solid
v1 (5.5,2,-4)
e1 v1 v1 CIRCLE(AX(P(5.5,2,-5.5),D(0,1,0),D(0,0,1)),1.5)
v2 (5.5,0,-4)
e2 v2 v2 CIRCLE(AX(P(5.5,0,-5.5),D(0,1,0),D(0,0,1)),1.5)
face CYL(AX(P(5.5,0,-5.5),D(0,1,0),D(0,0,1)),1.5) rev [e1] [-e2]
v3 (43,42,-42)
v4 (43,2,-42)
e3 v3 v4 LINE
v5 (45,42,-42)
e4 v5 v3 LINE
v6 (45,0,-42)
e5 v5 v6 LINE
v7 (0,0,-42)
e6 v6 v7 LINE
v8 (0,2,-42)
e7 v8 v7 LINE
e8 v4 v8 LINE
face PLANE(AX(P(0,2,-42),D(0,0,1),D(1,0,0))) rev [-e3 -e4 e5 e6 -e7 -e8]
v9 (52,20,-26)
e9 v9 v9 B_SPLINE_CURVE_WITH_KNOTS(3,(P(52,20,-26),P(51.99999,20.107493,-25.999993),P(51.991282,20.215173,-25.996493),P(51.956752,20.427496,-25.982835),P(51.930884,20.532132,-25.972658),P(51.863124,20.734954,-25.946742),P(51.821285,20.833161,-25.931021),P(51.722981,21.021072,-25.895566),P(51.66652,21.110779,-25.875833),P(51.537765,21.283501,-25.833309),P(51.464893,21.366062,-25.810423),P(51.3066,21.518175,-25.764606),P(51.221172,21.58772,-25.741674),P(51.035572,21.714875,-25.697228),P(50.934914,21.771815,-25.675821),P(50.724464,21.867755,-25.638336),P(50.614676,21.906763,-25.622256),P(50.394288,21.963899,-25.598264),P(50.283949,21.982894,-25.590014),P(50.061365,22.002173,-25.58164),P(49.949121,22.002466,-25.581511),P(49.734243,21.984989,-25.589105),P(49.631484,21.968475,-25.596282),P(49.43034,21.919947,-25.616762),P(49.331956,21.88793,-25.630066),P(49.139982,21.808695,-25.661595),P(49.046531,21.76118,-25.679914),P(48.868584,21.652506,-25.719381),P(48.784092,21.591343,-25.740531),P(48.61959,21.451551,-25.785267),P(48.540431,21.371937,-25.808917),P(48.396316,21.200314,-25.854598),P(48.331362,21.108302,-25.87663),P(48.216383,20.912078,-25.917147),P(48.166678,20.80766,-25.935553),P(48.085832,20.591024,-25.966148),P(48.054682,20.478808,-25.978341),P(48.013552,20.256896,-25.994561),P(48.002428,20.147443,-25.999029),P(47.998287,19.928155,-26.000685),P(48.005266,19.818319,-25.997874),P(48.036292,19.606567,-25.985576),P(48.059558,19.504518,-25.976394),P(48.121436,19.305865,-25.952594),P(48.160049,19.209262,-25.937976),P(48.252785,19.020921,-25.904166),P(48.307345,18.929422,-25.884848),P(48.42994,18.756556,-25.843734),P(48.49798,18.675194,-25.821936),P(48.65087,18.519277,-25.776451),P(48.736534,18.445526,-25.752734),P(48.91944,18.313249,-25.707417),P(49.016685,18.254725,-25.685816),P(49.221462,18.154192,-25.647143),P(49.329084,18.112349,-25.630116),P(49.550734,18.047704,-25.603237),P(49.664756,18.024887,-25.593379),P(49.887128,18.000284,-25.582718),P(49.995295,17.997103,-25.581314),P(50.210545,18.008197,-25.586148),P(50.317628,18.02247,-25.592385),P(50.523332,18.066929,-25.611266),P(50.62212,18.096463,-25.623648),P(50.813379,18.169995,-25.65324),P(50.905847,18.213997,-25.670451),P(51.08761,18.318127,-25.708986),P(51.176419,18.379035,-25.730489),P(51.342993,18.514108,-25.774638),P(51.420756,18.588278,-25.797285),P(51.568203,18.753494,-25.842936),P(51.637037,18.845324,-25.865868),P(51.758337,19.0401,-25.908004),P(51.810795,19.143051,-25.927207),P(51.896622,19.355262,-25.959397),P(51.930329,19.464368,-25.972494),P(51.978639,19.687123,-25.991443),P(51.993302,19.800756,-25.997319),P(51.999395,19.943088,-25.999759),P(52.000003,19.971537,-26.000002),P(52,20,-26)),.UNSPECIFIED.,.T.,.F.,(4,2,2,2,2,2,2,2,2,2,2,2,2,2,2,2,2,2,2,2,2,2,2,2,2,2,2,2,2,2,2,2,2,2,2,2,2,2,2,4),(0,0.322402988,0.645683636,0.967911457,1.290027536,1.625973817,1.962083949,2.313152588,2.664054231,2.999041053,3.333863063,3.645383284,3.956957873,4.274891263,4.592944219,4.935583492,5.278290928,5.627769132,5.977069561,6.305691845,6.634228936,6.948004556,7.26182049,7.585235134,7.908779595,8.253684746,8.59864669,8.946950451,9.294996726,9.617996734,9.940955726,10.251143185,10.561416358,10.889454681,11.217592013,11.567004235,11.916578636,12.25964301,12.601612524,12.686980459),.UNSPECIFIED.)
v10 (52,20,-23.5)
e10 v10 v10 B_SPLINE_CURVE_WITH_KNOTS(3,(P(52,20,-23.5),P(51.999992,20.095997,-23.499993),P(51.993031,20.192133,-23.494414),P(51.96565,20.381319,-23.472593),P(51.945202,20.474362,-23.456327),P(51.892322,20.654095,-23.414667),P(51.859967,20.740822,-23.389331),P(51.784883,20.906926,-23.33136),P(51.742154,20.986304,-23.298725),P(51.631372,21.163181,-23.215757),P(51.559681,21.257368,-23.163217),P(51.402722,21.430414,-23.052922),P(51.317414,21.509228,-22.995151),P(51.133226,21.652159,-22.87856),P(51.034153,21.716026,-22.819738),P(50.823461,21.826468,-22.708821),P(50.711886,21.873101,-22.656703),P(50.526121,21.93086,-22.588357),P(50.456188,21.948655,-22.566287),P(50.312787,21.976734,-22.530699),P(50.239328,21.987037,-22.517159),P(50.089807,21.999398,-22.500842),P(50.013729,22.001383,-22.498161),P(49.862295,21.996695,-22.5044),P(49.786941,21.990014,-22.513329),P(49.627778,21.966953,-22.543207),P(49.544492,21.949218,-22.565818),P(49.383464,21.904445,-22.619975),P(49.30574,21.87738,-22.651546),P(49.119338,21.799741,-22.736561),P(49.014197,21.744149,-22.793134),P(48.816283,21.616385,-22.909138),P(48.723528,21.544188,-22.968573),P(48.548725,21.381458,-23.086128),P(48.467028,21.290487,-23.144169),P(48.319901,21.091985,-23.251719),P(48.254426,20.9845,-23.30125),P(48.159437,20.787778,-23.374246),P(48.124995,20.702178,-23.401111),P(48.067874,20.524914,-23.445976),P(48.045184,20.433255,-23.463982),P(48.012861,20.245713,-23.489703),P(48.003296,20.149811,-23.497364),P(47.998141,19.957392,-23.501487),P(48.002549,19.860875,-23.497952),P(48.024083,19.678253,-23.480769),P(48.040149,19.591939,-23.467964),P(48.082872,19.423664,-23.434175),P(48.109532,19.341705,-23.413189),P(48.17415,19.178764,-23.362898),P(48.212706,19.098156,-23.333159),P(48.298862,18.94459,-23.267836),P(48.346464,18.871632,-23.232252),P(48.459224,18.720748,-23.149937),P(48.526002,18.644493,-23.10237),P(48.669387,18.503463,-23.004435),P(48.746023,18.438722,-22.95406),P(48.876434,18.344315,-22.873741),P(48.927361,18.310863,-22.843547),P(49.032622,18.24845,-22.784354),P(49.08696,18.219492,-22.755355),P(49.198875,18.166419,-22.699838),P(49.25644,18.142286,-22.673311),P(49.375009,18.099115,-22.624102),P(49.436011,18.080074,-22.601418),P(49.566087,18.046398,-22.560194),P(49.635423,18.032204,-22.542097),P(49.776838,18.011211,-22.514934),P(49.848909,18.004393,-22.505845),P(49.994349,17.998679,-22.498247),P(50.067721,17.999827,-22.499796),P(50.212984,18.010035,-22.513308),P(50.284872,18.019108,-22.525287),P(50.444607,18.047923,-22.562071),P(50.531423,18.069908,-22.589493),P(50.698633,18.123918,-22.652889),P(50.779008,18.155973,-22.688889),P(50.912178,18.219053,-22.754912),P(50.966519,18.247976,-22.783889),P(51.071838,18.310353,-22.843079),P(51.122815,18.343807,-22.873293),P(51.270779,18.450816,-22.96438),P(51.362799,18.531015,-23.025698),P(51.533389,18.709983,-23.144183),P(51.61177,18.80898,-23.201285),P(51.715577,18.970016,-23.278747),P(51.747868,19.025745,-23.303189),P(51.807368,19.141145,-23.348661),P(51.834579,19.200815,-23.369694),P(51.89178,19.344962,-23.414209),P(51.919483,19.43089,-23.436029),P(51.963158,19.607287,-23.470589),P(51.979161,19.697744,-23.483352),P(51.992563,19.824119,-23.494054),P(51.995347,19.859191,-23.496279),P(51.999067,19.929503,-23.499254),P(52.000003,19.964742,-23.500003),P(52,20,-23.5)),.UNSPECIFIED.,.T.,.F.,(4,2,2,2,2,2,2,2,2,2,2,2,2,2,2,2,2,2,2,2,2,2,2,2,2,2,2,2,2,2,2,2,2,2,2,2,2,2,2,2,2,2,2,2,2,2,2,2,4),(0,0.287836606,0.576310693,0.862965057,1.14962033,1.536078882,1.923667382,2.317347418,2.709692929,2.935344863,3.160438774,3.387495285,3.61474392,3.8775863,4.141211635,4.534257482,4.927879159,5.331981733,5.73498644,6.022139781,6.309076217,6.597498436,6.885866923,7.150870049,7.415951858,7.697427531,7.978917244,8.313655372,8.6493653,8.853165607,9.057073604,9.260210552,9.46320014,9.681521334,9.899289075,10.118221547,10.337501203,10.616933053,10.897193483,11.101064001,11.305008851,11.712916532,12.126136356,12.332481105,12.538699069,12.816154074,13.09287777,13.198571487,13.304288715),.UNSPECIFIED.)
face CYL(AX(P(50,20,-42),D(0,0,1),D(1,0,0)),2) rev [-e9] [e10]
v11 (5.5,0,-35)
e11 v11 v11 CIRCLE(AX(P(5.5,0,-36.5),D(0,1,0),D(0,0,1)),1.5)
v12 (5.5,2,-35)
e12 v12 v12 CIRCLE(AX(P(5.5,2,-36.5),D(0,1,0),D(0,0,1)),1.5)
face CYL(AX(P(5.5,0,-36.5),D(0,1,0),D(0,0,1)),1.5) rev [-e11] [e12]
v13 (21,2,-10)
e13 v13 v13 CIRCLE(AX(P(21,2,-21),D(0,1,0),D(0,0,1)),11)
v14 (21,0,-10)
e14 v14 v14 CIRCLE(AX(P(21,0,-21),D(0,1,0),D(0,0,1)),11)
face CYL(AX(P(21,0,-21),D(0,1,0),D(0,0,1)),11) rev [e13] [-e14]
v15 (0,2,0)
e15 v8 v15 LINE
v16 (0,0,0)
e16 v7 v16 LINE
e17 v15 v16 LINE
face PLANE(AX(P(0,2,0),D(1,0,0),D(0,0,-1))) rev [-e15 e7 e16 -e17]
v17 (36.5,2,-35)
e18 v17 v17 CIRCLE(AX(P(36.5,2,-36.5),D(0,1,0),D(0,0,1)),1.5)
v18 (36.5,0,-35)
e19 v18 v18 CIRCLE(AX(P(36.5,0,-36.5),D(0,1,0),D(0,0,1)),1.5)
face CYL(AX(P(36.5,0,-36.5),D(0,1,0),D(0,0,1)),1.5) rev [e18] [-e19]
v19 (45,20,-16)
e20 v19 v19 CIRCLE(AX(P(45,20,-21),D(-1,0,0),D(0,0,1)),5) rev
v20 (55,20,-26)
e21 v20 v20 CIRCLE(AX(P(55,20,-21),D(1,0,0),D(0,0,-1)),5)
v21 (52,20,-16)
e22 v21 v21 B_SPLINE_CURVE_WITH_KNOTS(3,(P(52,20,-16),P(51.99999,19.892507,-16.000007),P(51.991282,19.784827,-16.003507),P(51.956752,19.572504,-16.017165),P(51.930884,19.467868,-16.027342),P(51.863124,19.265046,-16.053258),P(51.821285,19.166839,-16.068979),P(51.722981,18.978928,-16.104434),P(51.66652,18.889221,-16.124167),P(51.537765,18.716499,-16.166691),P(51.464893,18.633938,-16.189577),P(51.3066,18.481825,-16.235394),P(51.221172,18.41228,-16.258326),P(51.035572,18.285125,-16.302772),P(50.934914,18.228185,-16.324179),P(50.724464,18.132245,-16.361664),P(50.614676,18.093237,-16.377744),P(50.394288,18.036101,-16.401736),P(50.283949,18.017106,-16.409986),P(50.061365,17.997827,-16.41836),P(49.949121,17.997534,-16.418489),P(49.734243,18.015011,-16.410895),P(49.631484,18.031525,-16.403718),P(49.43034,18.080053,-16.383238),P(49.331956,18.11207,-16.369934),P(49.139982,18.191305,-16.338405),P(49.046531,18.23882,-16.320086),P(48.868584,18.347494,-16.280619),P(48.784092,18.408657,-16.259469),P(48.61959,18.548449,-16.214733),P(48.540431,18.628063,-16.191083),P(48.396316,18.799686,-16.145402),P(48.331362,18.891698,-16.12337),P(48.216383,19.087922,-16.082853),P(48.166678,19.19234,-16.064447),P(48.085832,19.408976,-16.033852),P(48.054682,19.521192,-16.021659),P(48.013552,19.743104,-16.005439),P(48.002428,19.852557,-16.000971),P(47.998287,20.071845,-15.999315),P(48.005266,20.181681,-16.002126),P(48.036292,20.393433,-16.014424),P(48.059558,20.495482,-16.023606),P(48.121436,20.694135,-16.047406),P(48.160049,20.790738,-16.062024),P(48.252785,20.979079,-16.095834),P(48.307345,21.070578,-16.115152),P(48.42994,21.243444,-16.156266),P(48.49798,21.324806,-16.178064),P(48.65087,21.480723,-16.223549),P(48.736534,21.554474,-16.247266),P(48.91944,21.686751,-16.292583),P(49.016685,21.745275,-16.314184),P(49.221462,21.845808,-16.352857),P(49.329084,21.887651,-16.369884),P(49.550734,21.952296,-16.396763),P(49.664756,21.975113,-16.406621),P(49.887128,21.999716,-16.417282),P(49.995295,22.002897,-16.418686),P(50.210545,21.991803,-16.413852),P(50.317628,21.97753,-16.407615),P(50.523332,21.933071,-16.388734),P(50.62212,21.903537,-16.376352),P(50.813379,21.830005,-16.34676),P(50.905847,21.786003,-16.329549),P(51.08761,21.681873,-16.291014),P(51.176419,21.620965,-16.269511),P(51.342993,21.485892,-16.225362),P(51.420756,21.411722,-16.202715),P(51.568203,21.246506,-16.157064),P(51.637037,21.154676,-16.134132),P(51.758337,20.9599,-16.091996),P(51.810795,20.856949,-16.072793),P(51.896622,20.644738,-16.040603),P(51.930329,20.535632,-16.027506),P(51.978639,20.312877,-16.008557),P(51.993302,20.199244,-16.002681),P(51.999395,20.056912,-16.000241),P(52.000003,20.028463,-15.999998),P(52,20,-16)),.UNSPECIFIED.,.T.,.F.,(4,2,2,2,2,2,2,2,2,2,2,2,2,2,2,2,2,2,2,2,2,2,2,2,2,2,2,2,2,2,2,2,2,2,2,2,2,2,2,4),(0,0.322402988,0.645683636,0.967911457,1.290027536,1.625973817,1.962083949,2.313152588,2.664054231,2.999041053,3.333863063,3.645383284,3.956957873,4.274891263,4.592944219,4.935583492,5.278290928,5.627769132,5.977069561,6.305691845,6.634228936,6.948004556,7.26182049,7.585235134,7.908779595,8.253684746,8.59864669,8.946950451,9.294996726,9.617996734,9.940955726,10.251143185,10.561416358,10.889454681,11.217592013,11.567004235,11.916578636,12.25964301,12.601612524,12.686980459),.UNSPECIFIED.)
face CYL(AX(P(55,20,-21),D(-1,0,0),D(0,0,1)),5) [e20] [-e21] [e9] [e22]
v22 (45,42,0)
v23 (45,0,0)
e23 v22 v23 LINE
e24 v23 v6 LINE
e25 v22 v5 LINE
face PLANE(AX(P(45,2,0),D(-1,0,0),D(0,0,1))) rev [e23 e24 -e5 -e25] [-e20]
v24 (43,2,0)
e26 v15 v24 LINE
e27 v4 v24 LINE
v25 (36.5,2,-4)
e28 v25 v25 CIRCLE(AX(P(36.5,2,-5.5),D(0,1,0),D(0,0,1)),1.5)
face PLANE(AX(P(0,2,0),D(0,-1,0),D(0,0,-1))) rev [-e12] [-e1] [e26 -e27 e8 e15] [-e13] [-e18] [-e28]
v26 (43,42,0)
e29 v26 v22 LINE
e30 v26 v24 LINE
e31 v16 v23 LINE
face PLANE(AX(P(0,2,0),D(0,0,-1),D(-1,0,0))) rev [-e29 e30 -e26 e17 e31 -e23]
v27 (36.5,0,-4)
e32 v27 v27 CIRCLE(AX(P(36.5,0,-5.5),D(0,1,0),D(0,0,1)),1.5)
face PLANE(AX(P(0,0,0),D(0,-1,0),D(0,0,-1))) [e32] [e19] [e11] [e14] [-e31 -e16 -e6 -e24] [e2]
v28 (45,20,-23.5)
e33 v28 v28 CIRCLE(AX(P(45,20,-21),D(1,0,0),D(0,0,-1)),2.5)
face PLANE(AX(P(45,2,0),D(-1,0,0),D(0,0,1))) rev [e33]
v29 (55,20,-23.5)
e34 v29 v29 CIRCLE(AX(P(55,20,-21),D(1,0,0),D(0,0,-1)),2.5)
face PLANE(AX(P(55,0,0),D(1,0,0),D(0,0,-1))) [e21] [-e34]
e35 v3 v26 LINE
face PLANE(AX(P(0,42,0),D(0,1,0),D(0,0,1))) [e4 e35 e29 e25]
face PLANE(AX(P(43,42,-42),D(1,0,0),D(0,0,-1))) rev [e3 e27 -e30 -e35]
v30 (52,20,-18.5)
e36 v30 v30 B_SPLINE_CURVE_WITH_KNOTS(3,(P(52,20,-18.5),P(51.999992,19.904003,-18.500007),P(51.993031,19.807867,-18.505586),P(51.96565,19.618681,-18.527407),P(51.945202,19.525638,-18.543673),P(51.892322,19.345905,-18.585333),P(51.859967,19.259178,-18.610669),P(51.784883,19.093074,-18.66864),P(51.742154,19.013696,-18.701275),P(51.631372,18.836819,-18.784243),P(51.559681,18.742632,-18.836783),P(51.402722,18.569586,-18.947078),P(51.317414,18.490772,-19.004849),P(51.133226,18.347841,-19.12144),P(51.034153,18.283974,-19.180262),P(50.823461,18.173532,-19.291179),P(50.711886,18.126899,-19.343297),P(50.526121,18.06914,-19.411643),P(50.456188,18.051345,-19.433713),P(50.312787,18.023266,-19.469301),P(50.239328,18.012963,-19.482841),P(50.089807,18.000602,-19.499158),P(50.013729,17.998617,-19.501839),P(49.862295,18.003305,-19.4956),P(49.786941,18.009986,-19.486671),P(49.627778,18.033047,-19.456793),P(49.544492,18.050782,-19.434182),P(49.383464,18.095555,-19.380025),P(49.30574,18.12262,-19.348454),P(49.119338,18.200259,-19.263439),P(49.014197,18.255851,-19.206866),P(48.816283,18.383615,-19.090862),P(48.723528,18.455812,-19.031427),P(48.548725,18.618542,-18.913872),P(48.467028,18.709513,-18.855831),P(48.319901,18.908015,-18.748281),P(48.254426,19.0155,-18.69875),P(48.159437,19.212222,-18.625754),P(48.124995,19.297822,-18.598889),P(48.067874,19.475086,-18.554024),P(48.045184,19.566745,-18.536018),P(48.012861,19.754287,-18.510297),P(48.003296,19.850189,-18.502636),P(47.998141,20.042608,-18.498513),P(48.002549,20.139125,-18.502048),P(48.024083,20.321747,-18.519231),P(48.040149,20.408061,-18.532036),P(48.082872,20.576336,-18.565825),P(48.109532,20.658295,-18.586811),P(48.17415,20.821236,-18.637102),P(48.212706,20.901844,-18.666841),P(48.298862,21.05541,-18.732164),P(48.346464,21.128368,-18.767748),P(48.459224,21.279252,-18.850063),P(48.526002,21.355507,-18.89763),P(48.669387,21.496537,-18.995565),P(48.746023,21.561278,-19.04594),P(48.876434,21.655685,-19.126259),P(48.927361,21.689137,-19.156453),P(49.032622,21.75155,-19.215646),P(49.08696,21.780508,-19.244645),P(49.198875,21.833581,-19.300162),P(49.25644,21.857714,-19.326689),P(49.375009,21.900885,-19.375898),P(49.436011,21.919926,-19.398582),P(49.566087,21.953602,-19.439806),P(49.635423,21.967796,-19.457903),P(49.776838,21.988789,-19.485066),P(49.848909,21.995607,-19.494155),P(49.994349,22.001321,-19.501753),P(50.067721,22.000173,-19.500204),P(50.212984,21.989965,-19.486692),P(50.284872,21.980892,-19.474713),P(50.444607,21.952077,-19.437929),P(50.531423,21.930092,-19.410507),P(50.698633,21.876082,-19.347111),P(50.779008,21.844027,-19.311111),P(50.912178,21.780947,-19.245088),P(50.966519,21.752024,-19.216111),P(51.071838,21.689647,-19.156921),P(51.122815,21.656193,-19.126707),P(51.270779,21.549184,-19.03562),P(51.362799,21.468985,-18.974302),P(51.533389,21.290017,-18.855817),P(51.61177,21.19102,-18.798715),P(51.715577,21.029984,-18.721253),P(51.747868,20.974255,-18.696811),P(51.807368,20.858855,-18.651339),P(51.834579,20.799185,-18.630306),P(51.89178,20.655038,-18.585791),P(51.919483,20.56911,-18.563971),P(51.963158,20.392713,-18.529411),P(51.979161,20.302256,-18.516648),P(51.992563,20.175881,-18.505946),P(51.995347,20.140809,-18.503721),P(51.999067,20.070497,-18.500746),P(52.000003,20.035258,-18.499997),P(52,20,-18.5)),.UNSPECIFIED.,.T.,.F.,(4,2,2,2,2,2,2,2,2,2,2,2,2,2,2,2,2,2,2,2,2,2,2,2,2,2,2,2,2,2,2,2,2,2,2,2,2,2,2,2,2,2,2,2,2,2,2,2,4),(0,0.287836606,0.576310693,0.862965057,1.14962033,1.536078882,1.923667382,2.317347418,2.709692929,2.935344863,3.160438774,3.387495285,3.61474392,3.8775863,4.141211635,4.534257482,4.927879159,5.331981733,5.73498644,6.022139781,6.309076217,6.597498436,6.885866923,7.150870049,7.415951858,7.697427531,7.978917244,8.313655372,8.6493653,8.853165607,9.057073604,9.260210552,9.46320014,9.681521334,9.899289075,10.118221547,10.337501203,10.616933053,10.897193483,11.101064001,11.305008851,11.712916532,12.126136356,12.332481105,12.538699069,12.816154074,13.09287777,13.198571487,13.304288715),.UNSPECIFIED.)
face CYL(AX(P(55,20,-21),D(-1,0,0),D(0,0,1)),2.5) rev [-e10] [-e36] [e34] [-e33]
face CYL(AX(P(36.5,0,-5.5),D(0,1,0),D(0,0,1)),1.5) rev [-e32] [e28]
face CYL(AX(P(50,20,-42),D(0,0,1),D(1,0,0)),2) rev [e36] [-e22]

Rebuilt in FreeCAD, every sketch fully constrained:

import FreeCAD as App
import Part
import Sketcher
Q = App.Units.Quantity

doc = App.newDocument("Part")
body = doc.addObject("PartDesign::Body", "Body")

# Sketch on XZ plane
sketch1 = body.newObject("Sketcher::SketchObject", "Sketch")
sketch1.AttachmentSupport = (doc.getObject("XZ_Plane"), [""])
sketch1.MapMode = "FlatFace"
sketch1.addGeometry(Part.LineSegment(App.Vector(0, -42, 0), App.Vector(0, 0, 0)), False)
sketch1.addGeometry(Part.LineSegment(App.Vector(0, 0, 0), App.Vector(45, 0, 0)), False)
sketch1.addGeometry(Part.LineSegment(App.Vector(45, 0, 0), App.Vector(45, -42, 0)), False)
sketch1.addGeometry(Part.LineSegment(App.Vector(45, -42, 0), App.Vector(0, -42, 0)), False)
sketch1.addConstraint(Sketcher.Constraint("Coincident", 0, 2, 1, 1))
sketch1.addConstraint(Sketcher.Constraint("Coincident", 1, 2, 2, 1))
sketch1.addConstraint(Sketcher.Constraint("Coincident", 2, 2, 3, 1))
sketch1.addConstraint(Sketcher.Constraint("Coincident", 3, 2, 0, 1))
sketch1.addConstraint(Sketcher.Constraint("Vertical", 0))
sketch1.addConstraint(Sketcher.Constraint("Horizontal", 1))
sketch1.addConstraint(Sketcher.Constraint("Vertical", 2))
sketch1.addConstraint(Sketcher.Constraint("Horizontal", 3))
sketch1.addConstraint(Sketcher.Constraint("Coincident", 0, 2, -1, 1))
sketch1.addConstraint(Sketcher.Constraint("DistanceX", 1, 1, 1, 2, Q("45 mm")))
sketch1.addConstraint(Sketcher.Constraint("DistanceY", 0, 1, 0, 2, Q("42 mm")))
pad1 = body.newObject("PartDesign::Pad", "Pad")
pad1.Profile = sketch1
pad1.Length = 2
pad1.Reversed = True

# Sketch on XZ plane
sketch2 = body.newObject("Sketcher::SketchObject", "Sketch001")
sketch2.AttachmentSupport = (doc.getObject("XZ_Plane"), [""])
sketch2.MapMode = "FlatFace"
sketch2.AttachmentOffset = App.Placement(App.Vector(0, 0, -2), App.Rotation())
sketch2.addGeometry(Part.Circle(App.Vector(21, -21, 0), App.Vector(0, 0, 1), 11), False)
sketch2.addGeometry(Part.Circle(App.Vector(5.5, -5.5, 0), App.Vector(0, 0, 1), 1.5), False)
sketch2.addGeometry(Part.Circle(App.Vector(5.5, -36.5, 0), App.Vector(0, 0, 1), 1.5), False)
sketch2.addGeometry(Part.Circle(App.Vector(36.5, -36.5, 0), App.Vector(0, 0, 1), 1.5), False)
sketch2.addGeometry(Part.Circle(App.Vector(36.5, -5.5, 0), App.Vector(0, 0, 1), 1.5), False)
sketch2.addConstraint(Sketcher.Constraint("Equal", 1, 2))
sketch2.addConstraint(Sketcher.Constraint("Equal", 2, 3))
sketch2.addConstraint(Sketcher.Constraint("Equal", 3, 4))
sketch2.addConstraint(Sketcher.Constraint("Horizontal", 2, 3, 3, 3))
sketch2.addConstraint(Sketcher.Constraint("Horizontal", 1, 3, 4, 3))
sketch2.addConstraint(Sketcher.Constraint("Vertical", 1, 3, 2, 3))
sketch2.addConstraint(Sketcher.Constraint("Vertical", 3, 3, 4, 3))
sketch2.addConstraint(Sketcher.Constraint("Diameter", 0, Q("22 mm")))
sketch2.addConstraint(Sketcher.Constraint("Diameter", 1, Q("3 mm")))
sketch2.addConstraint(Sketcher.Constraint("DistanceX", -1, 1, 0, 3, Q("21 mm")))
sketch2.addConstraint(Sketcher.Constraint("DistanceY", 0, 3, -1, 1, Q("21 mm")))
sketch2.addConstraint(Sketcher.Constraint("DistanceY", 2, 3, 1, 3, Q("31 mm")))
sketch2.addConstraint(Sketcher.Constraint("DistanceX", 2, 3, 3, 3, Q("31 mm")))
sketch2.addConstraint(Sketcher.Constraint("DistanceX", -1, 1, 1, 3, Q("5.5 mm")))
sketch2.addConstraint(Sketcher.Constraint("DistanceY", 1, 3, -1, 1, Q("5.5 mm")))
pocket1 = body.newObject("PartDesign::Pocket", "Pocket")
pocket1.Profile = sketch2
pocket1.Length = 2
pocket1.Reversed = True

# Sketch on XZ plane
sketch3 = body.newObject("Sketcher::SketchObject", "Sketch002")
sketch3.AttachmentSupport = (doc.getObject("XZ_Plane"), [""])
sketch3.MapMode = "FlatFace"
sketch3.AttachmentOffset = App.Placement(App.Vector(0, 0, -2), App.Rotation())
sketch3.addGeometry(Part.LineSegment(App.Vector(43, -42, 0), App.Vector(43, 0, 0)), False)
sketch3.addGeometry(Part.LineSegment(App.Vector(43, 0, 0), App.Vector(45, 0, 0)), False)
sketch3.addGeometry(Part.LineSegment(App.Vector(45, 0, 0), App.Vector(45, -42, 0)), False)
sketch3.addGeometry(Part.LineSegment(App.Vector(45, -42, 0), App.Vector(43, -42, 0)), False)
sketch3.addConstraint(Sketcher.Constraint("Coincident", 0, 2, 1, 1))
sketch3.addConstraint(Sketcher.Constraint("Coincident", 1, 2, 2, 1))
sketch3.addConstraint(Sketcher.Constraint("Coincident", 2, 2, 3, 1))
sketch3.addConstraint(Sketcher.Constraint("Coincident", 3, 2, 0, 1))
sketch3.addConstraint(Sketcher.Constraint("Vertical", 0))
sketch3.addConstraint(Sketcher.Constraint("Horizontal", 1))
sketch3.addConstraint(Sketcher.Constraint("Vertical", 2))
sketch3.addConstraint(Sketcher.Constraint("Horizontal", 3))
sketch3.addConstraint(Sketcher.Constraint("PointOnObject", 0, 2, -1))
sketch3.addConstraint(Sketcher.Constraint("DistanceX", 1, 1, 1, 2, Q("2 mm")))
sketch3.addConstraint(Sketcher.Constraint("DistanceY", 0, 1, 0, 2, Q("42 mm")))
sketch3.addConstraint(Sketcher.Constraint("DistanceX", -1, 1, 0, 2, Q("43 mm")))
pad2 = body.newObject("PartDesign::Pad", "Pad001")
pad2.Profile = sketch3
pad2.Length = 40
pad2.Reversed = True

# Sketch on YZ plane
sketch4 = body.newObject("Sketcher::SketchObject", "Sketch003")
sketch4.AttachmentSupport = (doc.getObject("YZ_Plane"), [""])
sketch4.MapMode = "FlatFace"
sketch4.AttachmentOffset = App.Placement(App.Vector(0, 0, 45), App.Rotation())
sketch4.addGeometry(Part.Circle(App.Vector(20, -21, 0), App.Vector(0, 0, 1), 5), False)
sketch4.addGeometry(Part.Circle(App.Vector(20, -21, 0), App.Vector(0, 0, 1), 2.5), False)
sketch4.addConstraint(Sketcher.Constraint("Coincident", 1, 3, 0, 3))
sketch4.addConstraint(Sketcher.Constraint("Diameter", 0, Q("10 mm")))
sketch4.addConstraint(Sketcher.Constraint("Diameter", 1, Q("5 mm")))
sketch4.addConstraint(Sketcher.Constraint("DistanceX", -1, 1, 0, 3, Q("20 mm")))
sketch4.addConstraint(Sketcher.Constraint("DistanceY", 0, 3, -1, 1, Q("21 mm")))
pad3 = body.newObject("PartDesign::Pad", "Pad002")
pad3.Profile = sketch4
pad3.Length = 10

# Sketch on XY plane
sketch5 = body.newObject("Sketcher::SketchObject", "Sketch004")
sketch5.AttachmentSupport = (doc.getObject("XY_Plane"), [""])
sketch5.MapMode = "FlatFace"
sketch5.addGeometry(Part.Circle(App.Vector(50, 20, 0), App.Vector(0, 0, 1), 2), False)
sketch5.addConstraint(Sketcher.Constraint("Diameter", 0, Q("4 mm")))
sketch5.addConstraint(Sketcher.Constraint("DistanceX", -1, 1, 0, 3, Q("50 mm")))
sketch5.addConstraint(Sketcher.Constraint("DistanceY", -1, 1, 0, 3, Q("20 mm")))
pocket2 = body.newObject("PartDesign::Pocket", "Pocket001")
pocket2.Profile = sketch5
pocket2.Type = "ThroughAll"

doc.recompute()
